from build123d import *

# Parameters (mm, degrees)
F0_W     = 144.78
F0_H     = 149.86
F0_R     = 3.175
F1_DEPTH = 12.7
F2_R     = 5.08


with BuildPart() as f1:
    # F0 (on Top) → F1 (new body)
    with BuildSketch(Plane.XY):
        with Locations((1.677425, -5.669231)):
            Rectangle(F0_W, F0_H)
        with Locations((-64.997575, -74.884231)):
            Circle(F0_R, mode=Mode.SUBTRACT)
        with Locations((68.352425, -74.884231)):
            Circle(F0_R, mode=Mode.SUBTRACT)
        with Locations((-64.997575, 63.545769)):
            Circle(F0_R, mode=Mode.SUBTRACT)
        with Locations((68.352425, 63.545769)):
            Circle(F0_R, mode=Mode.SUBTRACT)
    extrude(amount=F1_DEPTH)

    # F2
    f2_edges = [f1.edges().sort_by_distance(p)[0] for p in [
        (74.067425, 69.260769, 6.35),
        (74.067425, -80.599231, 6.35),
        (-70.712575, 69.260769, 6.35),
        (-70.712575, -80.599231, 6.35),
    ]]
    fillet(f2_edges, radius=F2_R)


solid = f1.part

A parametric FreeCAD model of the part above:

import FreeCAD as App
import Part
import Sketcher
Q = App.Units.Quantity


def edges_at(feature, points):
    """Names of the edges that pass closest to the given points."""
    edges = feature.Shape.Edges
    near = lambda p: min(range(len(edges)), key=lambda i: edges[i].distToShape(Part.Vertex(*p))[0])
    return sorted({f"Edge{near(p) + 1}" for p in points})


def add_polygon(sketch, points):
    """Adds a closed chain of lines whose ends are joined by coincident constraints."""
    first, n = sketch.GeometryCount, len(points)
    for a, b in zip(points, points[1:] + points[:1]):
        sketch.addGeometry(Part.LineSegment(App.Vector(*a, 0), App.Vector(*b, 0)), False)
    for i in range(n):
        sketch.addConstraint(Sketcher.Constraint("Coincident", first + i, 2, first + (i + 1) % n, 1))

doc = App.newDocument("Part")
body = doc.addObject("PartDesign::Body", "Body")

sketch1 = body.newObject("Sketcher::SketchObject", "Sketch")
sketch1.AttachmentSupport = (doc.getObject("XY_Plane"), [""])
sketch1.MapMode = "FlatFace"
add_polygon(sketch1, [(-70.712575, 69.260769), (-70.712575, -80.599231), (74.067425, -80.599231), (74.067425, 69.260769)])
sketch1.addGeometry(Part.Circle(App.Vector(-64.997575, -74.884231, 0), App.Vector(0, 0, 1), 3.175), False)
sketch1.addGeometry(Part.Circle(App.Vector(68.352425, -74.884231, 0), App.Vector(0, 0, 1), 3.175), False)
sketch1.addGeometry(Part.Circle(App.Vector(-64.997575, 63.545769, 0), App.Vector(0, 0, 1), 3.175), False)
sketch1.addGeometry(Part.Circle(App.Vector(68.352425, 63.545769, 0), App.Vector(0, 0, 1), 3.175), False)
sketch1.addConstraint(Sketcher.Constraint("Vertical", 0))
sketch1.addConstraint(Sketcher.Constraint("Horizontal", 1))
sketch1.addConstraint(Sketcher.Constraint("Vertical", 2))
sketch1.addConstraint(Sketcher.Constraint("Horizontal", 3))
sketch1.addConstraint(Sketcher.Constraint("Equal", 4, 5))
sketch1.addConstraint(Sketcher.Constraint("Equal", 5, 6))
sketch1.addConstraint(Sketcher.Constraint("Equal", 6, 7))
sketch1.addConstraint(Sketcher.Constraint("Horizontal", 4, 3, 5, 3))
sketch1.addConstraint(Sketcher.Constraint("Horizontal", 6, 3, 7, 3))
sketch1.addConstraint(Sketcher.Constraint("Vertical", 4, 3, 6, 3))
sketch1.addConstraint(Sketcher.Constraint("Vertical", 5, 3, 7, 3))
sketch1.addConstraint(Sketcher.Constraint("Diameter", 4, Q("0.25 in")))
sketch1.addConstraint(Sketcher.Constraint("DistanceX", 1, 1, 1, 2, Q("5.7 in")))
sketch1.addConstraint(Sketcher.Constraint("DistanceY", 0, 2, 0, 1, Q("5.9 in")))
sketch1.addConstraint(Sketcher.Constraint("DistanceX", 4, 3, 5, 3, Q("5.25 in")))
sketch1.addConstraint(Sketcher.Constraint("DistanceY", 4, 3, 6, 3, Q("5.45 in")))
sketch1.addConstraint(Sketcher.Constraint("DistanceX", 0, 2, 4, 3, Q("0.225 in")))
sketch1.addConstraint(Sketcher.Constraint("DistanceY", 0, 2, 4, 3, Q("0.225 in")))
sketch1.addConstraint(Sketcher.Constraint("DistanceY", 4, 3, -1, 1, 74.884231))
sketch1.addConstraint(Sketcher.Constraint("DistanceX", 4, 3, -1, 1, 64.997575))
pad1 = body.newObject("PartDesign::Pad", "Pad")
pad1.Profile = sketch1
pad1.Length = Q("0.5 in")
doc.recompute()

fillet = body.newObject("PartDesign::Fillet", "Fillet")
fillet.Base = (pad1, edges_at(pad1, [
    (74.067, 69.261, 6.35),
    (74.067, -80.599, 6.35),
    (-70.713, 69.261, 6.35),
    (-70.713, -80.599, 6.35),
]))
fillet.Radius = Q("0.2 in")

doc.recompute()
